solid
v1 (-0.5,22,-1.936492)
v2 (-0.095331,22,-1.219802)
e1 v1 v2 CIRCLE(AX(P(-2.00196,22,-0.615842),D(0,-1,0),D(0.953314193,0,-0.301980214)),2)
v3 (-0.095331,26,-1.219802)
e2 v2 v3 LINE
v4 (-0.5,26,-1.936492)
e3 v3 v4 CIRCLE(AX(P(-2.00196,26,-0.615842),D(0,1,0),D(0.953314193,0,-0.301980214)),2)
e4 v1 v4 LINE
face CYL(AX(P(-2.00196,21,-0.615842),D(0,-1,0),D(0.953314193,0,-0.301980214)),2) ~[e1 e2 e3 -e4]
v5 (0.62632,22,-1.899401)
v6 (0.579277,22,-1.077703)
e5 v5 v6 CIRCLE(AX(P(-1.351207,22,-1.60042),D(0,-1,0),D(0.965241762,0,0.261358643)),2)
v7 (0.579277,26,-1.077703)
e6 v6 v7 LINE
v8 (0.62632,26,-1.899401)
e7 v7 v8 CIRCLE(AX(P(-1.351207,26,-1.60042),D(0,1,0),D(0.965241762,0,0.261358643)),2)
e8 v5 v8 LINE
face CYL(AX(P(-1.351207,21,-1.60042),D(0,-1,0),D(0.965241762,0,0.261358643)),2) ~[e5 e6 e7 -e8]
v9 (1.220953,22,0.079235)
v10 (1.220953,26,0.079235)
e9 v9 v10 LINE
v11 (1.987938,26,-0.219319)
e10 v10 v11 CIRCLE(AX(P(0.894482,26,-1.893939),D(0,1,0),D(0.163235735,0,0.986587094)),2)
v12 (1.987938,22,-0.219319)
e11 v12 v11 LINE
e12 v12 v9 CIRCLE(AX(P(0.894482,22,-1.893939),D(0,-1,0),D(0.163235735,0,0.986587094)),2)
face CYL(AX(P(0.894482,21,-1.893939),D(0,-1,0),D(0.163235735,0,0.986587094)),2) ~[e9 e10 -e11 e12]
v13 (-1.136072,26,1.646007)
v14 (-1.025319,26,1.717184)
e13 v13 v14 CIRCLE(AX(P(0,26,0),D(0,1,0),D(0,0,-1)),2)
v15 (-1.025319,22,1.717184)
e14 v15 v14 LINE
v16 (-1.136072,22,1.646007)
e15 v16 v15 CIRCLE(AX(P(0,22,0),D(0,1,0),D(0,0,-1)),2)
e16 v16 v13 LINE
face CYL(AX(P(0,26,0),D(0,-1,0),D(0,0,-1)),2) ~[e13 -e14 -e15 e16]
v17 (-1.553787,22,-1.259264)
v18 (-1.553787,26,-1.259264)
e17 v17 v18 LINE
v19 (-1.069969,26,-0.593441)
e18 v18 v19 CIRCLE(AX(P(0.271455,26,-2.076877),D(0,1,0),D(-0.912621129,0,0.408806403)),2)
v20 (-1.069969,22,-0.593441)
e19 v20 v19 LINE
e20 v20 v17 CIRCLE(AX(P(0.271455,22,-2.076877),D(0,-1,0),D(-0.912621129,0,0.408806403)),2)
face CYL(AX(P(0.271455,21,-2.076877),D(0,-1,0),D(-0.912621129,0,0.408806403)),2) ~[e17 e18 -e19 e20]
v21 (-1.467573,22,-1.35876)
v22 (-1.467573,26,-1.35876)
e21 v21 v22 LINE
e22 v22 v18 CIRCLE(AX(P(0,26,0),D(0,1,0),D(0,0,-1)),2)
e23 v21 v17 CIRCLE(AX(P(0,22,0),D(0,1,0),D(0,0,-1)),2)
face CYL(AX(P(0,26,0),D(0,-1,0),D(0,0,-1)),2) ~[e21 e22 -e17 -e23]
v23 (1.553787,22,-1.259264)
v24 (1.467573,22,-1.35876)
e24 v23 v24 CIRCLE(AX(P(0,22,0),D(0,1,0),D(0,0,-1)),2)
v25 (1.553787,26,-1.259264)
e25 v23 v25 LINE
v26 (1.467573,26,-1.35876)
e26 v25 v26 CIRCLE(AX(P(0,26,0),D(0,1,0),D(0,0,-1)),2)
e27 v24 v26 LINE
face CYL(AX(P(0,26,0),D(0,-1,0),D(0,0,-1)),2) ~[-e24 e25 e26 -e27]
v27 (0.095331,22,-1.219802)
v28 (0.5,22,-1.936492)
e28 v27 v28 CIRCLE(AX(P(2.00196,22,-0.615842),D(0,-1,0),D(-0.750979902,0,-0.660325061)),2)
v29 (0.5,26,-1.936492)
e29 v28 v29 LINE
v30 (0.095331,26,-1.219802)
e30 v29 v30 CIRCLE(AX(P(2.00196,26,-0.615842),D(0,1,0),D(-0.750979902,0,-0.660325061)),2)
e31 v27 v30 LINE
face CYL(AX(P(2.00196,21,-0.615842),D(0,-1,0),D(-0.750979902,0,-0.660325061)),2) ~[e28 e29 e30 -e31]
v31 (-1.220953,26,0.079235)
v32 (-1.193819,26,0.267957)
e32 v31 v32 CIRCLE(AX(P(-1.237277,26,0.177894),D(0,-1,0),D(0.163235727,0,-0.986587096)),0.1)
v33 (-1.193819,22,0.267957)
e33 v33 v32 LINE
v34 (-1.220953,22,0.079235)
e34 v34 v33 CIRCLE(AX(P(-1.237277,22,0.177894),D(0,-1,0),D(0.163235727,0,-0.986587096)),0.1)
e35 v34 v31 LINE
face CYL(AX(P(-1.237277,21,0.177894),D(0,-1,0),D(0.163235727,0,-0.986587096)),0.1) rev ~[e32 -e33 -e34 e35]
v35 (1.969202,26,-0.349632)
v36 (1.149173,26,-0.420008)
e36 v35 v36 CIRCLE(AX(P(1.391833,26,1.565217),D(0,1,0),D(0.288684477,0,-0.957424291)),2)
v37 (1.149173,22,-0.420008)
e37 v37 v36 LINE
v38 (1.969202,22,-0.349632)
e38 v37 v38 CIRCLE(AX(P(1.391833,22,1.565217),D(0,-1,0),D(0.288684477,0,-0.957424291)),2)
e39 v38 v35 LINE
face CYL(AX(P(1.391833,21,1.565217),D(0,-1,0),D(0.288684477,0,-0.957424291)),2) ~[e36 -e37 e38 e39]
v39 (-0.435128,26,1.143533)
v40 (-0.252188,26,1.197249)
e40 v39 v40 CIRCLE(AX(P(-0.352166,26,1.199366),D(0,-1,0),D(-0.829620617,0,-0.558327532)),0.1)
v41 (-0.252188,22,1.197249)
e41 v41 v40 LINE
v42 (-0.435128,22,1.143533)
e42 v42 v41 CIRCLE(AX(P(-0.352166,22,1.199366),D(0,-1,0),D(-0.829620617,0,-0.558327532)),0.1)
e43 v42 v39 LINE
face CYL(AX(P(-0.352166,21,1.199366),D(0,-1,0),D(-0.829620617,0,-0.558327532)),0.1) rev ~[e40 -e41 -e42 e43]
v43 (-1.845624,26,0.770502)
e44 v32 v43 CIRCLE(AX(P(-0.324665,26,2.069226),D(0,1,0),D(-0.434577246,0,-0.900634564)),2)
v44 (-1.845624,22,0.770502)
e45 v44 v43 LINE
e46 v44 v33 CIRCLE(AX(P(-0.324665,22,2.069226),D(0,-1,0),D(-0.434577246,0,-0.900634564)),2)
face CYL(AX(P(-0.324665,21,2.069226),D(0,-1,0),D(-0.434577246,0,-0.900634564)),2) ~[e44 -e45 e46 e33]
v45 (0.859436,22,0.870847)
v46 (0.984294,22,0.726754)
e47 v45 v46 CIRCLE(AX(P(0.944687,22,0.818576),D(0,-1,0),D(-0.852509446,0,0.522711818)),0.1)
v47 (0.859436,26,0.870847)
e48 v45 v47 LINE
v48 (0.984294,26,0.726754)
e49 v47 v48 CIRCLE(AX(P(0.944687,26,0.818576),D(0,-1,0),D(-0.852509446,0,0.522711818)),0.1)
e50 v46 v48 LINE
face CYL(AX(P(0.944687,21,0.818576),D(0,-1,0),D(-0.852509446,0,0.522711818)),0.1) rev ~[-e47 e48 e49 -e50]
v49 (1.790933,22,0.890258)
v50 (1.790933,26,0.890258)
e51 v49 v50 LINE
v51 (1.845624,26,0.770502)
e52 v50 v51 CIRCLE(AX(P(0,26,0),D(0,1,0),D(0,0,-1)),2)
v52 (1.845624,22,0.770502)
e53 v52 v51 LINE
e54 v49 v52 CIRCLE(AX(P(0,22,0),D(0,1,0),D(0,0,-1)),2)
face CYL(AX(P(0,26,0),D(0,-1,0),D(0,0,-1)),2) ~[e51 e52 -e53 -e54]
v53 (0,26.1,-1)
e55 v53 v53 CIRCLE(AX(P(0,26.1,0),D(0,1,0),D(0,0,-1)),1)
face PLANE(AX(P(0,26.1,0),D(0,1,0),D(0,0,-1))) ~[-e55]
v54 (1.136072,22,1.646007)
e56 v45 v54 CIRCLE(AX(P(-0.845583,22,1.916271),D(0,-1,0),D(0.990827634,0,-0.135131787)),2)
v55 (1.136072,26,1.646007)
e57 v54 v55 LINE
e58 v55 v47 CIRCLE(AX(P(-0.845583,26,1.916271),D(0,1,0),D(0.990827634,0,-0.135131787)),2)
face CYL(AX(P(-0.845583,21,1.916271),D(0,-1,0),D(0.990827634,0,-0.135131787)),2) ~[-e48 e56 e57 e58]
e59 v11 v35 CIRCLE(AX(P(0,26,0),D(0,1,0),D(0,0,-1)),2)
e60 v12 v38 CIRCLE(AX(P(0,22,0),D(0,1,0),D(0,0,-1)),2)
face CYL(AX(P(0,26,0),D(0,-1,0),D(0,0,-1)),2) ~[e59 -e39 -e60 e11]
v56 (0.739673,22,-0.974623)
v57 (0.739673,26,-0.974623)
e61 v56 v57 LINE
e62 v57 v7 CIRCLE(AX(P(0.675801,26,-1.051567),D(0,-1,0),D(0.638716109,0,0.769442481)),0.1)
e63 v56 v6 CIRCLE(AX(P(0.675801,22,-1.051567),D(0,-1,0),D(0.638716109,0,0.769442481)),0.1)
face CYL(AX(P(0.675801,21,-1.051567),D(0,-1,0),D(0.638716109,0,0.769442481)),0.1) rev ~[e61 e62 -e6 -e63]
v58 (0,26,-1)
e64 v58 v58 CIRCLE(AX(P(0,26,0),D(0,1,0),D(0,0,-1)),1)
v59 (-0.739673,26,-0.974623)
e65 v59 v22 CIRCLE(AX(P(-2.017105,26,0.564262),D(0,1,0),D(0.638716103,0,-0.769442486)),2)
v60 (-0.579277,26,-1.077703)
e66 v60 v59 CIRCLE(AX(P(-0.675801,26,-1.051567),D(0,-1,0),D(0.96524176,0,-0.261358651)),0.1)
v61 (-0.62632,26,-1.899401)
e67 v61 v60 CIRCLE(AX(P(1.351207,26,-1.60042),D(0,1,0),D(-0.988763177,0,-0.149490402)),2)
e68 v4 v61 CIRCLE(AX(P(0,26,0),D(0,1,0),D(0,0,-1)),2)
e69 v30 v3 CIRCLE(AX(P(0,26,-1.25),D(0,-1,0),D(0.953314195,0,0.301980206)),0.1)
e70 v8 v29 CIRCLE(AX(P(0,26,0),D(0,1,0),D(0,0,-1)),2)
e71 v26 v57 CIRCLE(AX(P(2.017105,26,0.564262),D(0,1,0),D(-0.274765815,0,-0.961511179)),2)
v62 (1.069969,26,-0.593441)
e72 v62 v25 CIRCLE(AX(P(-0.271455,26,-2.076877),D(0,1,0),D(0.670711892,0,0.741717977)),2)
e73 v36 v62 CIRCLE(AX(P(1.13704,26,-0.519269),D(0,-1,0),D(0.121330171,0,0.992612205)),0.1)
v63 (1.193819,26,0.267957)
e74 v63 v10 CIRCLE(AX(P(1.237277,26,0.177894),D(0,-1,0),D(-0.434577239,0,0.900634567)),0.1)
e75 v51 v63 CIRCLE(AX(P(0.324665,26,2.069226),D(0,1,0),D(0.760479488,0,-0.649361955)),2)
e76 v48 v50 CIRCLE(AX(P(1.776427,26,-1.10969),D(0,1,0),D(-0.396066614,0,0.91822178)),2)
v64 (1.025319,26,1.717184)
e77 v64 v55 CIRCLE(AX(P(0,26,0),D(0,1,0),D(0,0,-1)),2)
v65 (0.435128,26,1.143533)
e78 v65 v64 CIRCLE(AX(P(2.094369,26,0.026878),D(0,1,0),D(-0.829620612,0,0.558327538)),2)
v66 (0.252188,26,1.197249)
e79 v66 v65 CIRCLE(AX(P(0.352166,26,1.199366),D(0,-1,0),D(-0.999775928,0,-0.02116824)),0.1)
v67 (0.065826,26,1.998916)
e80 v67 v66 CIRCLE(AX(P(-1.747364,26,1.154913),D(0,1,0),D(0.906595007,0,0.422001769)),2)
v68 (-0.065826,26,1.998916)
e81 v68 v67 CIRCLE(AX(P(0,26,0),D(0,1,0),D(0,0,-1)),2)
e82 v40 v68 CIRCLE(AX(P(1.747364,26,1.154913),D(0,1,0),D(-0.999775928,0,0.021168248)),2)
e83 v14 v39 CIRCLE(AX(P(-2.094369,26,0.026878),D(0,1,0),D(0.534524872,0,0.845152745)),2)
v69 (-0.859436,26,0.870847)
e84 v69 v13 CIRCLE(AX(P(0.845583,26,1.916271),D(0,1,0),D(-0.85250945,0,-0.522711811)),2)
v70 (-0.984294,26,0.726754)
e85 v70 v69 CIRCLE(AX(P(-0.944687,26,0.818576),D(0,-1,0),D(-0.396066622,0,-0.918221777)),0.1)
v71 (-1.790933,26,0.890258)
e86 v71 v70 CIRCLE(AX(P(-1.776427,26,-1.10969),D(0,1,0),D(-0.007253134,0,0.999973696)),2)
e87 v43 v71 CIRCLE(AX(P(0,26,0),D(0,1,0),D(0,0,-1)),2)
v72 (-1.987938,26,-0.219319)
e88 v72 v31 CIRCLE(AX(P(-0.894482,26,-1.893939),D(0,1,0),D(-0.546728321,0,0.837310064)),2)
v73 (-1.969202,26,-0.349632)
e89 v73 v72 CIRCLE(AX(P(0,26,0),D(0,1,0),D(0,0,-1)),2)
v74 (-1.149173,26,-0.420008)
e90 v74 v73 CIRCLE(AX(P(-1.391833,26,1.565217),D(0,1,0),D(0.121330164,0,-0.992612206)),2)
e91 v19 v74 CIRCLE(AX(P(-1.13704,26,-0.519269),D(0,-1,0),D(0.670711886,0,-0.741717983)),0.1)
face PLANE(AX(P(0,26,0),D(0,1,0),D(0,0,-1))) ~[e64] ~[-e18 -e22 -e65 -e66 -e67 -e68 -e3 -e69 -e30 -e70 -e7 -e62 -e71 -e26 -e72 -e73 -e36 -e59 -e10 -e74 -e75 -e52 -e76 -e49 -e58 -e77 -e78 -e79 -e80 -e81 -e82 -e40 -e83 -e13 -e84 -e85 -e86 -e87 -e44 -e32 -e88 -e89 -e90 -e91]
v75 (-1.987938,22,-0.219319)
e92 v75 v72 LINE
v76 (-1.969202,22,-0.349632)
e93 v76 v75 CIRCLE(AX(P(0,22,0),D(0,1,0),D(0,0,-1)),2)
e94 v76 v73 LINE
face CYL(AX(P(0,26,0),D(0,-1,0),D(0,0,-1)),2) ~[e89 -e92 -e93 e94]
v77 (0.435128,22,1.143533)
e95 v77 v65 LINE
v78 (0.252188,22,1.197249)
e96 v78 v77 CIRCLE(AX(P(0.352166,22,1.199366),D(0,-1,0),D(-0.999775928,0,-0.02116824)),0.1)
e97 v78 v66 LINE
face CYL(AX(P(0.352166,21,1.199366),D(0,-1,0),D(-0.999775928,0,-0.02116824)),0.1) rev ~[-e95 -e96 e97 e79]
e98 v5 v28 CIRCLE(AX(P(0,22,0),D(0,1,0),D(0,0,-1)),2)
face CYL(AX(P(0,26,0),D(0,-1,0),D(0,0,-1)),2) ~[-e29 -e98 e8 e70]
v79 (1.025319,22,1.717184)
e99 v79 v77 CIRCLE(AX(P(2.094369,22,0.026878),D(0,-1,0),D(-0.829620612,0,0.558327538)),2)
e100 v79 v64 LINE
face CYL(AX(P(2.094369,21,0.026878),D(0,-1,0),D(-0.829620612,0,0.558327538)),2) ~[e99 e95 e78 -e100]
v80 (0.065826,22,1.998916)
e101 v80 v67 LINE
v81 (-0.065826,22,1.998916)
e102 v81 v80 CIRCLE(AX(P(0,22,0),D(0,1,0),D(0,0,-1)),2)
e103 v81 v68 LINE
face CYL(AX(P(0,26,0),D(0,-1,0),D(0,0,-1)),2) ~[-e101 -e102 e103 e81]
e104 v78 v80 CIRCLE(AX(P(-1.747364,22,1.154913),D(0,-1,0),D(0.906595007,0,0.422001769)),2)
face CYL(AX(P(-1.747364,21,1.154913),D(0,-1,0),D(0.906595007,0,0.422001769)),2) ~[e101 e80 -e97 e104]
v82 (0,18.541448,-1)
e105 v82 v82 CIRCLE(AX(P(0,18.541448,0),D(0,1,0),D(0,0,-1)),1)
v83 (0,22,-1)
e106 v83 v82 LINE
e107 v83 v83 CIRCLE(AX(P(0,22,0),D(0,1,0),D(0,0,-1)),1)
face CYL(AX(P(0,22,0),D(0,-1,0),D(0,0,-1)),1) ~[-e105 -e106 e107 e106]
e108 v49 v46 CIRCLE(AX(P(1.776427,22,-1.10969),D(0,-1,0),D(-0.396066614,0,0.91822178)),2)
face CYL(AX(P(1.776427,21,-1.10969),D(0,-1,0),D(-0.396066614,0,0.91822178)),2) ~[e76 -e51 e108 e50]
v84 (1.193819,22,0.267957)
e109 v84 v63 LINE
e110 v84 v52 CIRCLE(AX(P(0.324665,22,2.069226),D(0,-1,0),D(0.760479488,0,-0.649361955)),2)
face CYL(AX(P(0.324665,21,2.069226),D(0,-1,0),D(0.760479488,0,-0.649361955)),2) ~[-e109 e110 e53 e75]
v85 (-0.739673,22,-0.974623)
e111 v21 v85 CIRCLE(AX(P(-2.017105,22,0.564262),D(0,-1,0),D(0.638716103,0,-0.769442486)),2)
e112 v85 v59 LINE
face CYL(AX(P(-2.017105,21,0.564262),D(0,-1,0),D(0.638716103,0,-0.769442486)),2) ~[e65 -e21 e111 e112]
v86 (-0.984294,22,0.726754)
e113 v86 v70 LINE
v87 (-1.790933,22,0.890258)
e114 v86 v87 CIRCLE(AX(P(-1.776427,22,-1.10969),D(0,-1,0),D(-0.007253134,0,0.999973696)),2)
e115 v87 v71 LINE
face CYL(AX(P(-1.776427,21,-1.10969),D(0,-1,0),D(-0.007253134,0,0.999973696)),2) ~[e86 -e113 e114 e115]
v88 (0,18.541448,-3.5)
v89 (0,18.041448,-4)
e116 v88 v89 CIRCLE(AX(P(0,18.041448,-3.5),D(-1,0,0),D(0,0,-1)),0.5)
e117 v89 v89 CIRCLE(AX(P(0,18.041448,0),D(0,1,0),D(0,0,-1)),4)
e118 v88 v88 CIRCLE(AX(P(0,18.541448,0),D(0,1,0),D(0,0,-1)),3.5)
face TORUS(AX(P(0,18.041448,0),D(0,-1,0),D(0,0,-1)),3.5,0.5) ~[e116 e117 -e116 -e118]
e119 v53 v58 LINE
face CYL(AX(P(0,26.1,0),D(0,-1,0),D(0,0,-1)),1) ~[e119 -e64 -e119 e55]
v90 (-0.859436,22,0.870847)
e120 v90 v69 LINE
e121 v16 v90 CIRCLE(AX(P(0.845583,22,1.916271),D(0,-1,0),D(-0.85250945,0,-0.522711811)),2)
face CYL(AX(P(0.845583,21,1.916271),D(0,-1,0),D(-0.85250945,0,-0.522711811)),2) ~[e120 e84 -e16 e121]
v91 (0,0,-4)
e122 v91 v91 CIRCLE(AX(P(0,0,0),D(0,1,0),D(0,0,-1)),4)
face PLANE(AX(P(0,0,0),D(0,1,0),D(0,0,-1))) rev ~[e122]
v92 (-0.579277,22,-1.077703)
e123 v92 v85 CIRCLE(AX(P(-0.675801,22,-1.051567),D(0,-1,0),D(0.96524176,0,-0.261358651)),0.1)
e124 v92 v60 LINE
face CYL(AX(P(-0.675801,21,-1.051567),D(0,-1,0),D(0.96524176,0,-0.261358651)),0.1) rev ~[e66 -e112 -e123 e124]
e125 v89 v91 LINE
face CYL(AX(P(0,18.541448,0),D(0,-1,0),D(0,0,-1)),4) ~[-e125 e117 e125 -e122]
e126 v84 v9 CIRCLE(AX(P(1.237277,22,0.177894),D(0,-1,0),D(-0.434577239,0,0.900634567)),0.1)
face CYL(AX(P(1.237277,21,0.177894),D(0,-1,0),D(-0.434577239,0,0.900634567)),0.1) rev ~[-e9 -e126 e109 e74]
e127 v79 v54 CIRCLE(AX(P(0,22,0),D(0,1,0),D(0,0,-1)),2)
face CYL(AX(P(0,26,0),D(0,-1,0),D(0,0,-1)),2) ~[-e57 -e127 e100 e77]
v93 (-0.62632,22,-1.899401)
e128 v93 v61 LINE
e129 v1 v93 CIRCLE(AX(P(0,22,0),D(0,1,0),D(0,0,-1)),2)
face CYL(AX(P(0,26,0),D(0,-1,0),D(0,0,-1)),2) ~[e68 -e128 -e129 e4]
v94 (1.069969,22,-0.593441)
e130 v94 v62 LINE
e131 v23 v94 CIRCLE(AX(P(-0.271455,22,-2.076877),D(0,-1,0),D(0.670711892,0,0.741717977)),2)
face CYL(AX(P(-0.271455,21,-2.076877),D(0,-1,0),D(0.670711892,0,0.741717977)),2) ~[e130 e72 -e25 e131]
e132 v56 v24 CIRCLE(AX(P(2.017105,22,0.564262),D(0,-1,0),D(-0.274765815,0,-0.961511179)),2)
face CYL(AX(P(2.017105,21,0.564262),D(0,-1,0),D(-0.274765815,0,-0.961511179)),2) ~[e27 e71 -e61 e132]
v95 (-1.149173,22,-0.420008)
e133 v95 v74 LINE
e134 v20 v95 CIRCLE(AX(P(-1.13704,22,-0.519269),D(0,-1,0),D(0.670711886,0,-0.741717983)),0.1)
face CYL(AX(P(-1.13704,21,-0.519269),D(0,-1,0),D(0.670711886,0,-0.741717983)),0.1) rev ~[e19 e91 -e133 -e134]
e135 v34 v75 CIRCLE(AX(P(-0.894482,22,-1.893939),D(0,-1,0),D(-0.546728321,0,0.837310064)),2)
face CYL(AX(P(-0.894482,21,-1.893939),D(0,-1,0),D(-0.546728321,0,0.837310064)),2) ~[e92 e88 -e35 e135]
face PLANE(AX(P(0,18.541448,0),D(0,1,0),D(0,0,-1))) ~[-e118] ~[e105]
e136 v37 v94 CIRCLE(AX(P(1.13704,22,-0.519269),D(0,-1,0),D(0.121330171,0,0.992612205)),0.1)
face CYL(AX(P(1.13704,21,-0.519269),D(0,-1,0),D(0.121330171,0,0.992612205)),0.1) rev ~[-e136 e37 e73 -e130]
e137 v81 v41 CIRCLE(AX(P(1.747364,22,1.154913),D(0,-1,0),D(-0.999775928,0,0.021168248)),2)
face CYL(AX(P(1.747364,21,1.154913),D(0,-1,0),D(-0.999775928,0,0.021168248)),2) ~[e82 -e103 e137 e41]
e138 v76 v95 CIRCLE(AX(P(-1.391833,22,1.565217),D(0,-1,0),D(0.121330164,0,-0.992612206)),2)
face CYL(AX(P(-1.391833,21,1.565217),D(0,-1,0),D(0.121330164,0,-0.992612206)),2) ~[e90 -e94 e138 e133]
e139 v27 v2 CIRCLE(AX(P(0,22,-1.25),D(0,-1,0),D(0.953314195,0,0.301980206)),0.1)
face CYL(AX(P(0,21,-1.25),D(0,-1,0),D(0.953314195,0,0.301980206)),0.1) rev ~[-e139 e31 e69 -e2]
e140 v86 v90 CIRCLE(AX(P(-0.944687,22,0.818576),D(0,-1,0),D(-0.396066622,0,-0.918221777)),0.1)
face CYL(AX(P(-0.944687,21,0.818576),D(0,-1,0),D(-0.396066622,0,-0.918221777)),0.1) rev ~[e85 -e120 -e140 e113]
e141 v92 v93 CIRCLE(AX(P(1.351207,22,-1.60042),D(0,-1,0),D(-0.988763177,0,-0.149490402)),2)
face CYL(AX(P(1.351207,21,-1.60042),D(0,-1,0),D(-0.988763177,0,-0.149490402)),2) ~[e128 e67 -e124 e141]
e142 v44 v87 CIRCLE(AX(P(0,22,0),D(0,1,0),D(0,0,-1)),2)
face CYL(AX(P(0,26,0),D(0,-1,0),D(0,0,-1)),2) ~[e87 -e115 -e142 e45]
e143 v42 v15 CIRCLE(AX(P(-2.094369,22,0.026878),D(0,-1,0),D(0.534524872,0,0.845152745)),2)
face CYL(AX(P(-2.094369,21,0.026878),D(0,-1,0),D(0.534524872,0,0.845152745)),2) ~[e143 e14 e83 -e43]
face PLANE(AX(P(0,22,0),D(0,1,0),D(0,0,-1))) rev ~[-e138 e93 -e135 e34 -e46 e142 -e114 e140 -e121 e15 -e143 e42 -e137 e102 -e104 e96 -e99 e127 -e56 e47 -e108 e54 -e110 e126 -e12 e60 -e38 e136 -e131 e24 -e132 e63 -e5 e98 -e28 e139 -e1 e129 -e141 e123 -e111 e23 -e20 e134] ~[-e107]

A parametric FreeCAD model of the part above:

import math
import FreeCAD as App
import Part
import Sketcher
from FreeCAD import Vector
Q = App.Units.Quantity


def edges_at(feature, points):
    """Names of the edges that pass closest to the given points."""
    edges = feature.Shape.Edges
    near = lambda p: min(range(len(edges)), key=lambda i: edges[i].distToShape(Part.Vertex(*p))[0])
    return sorted({f"Edge{near(p) + 1}" for p in points})


def add_polygon(sketch, points):
    """Adds a closed chain of lines whose ends are joined by coincident constraints."""
    first, n = sketch.GeometryCount, len(points)
    for a, b in zip(points, points[1:] + points[:1]):
        sketch.addGeometry(Part.LineSegment(App.Vector(*a, 0), App.Vector(*b, 0)), False)
    for i in range(n):
        sketch.addConstraint(Sketcher.Constraint("Coincident", first + i, 2, first + (i + 1) % n, 1))

doc = App.newDocument("Part")
body = doc.addObject("PartDesign::Body", "Body")

sketch1 = body.newObject("Sketcher::SketchObject", "Sketch")
sketch1.AttachmentSupport = (doc.getObject("XY_Plane"), [""])
sketch1.MapMode = "FlatFace"
add_polygon(sketch1, [(0, 26.1), (0, 0), (4, 0), (4, 18.54), (1, 18.54), (1, 22), (2, 22), (2, 26), (1, 26), (1, 26.1)])
sketch1.addConstraint(Sketcher.Constraint("Vertical", 0))
sketch1.addConstraint(Sketcher.Constraint("Horizontal", 1))
sketch1.addConstraint(Sketcher.Constraint("Vertical", 2))
sketch1.addConstraint(Sketcher.Constraint("Horizontal", 3))
sketch1.addConstraint(Sketcher.Constraint("Vertical", 4))
sketch1.addConstraint(Sketcher.Constraint("Horizontal", 5))
sketch1.addConstraint(Sketcher.Constraint("Vertical", 6))
sketch1.addConstraint(Sketcher.Constraint("Horizontal", 7))
sketch1.addConstraint(Sketcher.Constraint("Vertical", 8))
sketch1.addConstraint(Sketcher.Constraint("Horizontal", 9))
sketch1.addConstraint(Sketcher.Constraint("Coincident", 0, 2, -1, 1))
sketch1.addConstraint(Sketcher.Constraint("Vertical", 4, 2, 7, 2))
sketch1.addConstraint(Sketcher.Constraint("Equal", 7, 9))
sketch1.addConstraint(Sketcher.Constraint("Equal", 1, 6))
sketch1.addConstraint(Sketcher.Constraint("DistanceX", 1, 1, 1, 2, Q("4 mm")))
sketch1.addConstraint(Sketcher.Constraint("DistanceX", 3, 2, 3, 1, Q("3 mm")))
sketch1.addConstraint(Sketcher.Constraint("DistanceY", 0, 2, 0, 1, Q("26.1 mm")))
sketch1.addConstraint(Sketcher.Constraint("DistanceY", 8, 1, 8, 2, Q("0.1 mm")))
sketch1.addConstraint(Sketcher.Constraint("DistanceY", 2, 1, 2, 2, Q("18.541448 mm")))
revolution = body.newObject("PartDesign::Revolution", "Revolution")
revolution.Profile = sketch1
revolution.ReferenceAxis = (sketch1, ["V_Axis"])
revolution.Angle = 360

sketch2 = body.newObject("Sketcher::SketchObject", "Sketch001")
sketch2.AttachmentSupport = (doc.getObject("XZ_Plane"), [""])
sketch2.MapMode = "FlatFace"
sketch2.AttachmentOffset = App.Placement(Vector(0, 0, -21), App.Rotation())
sketch2.addGeometry(Part.ArcOfCircle(Part.Circle(Vector(0, 0, 0), Vector(0, 0, 1), 2), math.radians(-104), math.radians(-76)), False)
sketch2.addGeometry(Part.ArcOfCircle(Part.Circle(Vector(-2, -0.62, 0), Vector(0, 0, 1), 2), math.radians(-41), math.radians(-18)), False)
sketch2.addGeometry(Part.ArcOfCircle(Part.Circle(Vector(0, -1.25, 0), Vector(0, 0, 1), 0.1), math.radians(18), math.radians(162)), False)
sketch2.addGeometry(Part.ArcOfCircle(Part.Circle(Vector(2, -0.62, 0), Vector(0, 0, 1), 2), math.radians(-162), math.radians(-139)), False)
sketch2.addConstraint(Sketcher.Constraint("Coincident", 0, 1, 1, 1))
sketch2.addConstraint(Sketcher.Constraint("Tangent", 1, 2, 2, 2))
sketch2.addConstraint(Sketcher.Constraint("Tangent", 2, 1, 3, 1))
sketch2.addConstraint(Sketcher.Constraint("Coincident", 3, 2, 0, 2))
sketch2.addConstraint(Sketcher.Constraint("Coincident", 0, 3, -1, 1))
sketch2.addConstraint(Sketcher.Constraint("Equal", 0, 1))
sketch2.addConstraint(Sketcher.Constraint("Equal", 1, 3))
sketch2.addConstraint(Sketcher.Constraint("Symmetric", 1, 3, 3, 3, -2))
sketch2.addConstraint(Sketcher.Constraint("Radius", 0, Q("2 mm")))
sketch2.addConstraint(Sketcher.Constraint("Radius", 2, Q("0.1 mm")))
sketch2.addConstraint(Sketcher.Constraint("DistanceX", 0, 1, 3, 2, Q("1 mm")))
sketch2.addConstraint(Sketcher.Constraint("DistanceY", 2, 3, -1, 1, Q("1.25 mm")))
pocket1 = body.newObject("PartDesign::Pocket", "Pocket")
pocket1.Profile = sketch2
pocket1.Length = 5
doc.recompute()

polarpattern = body.newObject("PartDesign::PolarPattern", "PolarPattern")
polarpattern.Originals = [pocket1]
polarpattern.Axis = (doc.getObject("Y_Axis"), [""])
polarpattern.Angle = 360
polarpattern.Occurrences = 11
body.Tip = polarpattern
doc.recompute()

fillet = body.newObject("PartDesign::Fillet", "Fillet")
fillet.Base = (polarpattern, edges_at(polarpattern, [(0, 18.541, 4)]))
fillet.Radius = 0.5

doc.recompute()
